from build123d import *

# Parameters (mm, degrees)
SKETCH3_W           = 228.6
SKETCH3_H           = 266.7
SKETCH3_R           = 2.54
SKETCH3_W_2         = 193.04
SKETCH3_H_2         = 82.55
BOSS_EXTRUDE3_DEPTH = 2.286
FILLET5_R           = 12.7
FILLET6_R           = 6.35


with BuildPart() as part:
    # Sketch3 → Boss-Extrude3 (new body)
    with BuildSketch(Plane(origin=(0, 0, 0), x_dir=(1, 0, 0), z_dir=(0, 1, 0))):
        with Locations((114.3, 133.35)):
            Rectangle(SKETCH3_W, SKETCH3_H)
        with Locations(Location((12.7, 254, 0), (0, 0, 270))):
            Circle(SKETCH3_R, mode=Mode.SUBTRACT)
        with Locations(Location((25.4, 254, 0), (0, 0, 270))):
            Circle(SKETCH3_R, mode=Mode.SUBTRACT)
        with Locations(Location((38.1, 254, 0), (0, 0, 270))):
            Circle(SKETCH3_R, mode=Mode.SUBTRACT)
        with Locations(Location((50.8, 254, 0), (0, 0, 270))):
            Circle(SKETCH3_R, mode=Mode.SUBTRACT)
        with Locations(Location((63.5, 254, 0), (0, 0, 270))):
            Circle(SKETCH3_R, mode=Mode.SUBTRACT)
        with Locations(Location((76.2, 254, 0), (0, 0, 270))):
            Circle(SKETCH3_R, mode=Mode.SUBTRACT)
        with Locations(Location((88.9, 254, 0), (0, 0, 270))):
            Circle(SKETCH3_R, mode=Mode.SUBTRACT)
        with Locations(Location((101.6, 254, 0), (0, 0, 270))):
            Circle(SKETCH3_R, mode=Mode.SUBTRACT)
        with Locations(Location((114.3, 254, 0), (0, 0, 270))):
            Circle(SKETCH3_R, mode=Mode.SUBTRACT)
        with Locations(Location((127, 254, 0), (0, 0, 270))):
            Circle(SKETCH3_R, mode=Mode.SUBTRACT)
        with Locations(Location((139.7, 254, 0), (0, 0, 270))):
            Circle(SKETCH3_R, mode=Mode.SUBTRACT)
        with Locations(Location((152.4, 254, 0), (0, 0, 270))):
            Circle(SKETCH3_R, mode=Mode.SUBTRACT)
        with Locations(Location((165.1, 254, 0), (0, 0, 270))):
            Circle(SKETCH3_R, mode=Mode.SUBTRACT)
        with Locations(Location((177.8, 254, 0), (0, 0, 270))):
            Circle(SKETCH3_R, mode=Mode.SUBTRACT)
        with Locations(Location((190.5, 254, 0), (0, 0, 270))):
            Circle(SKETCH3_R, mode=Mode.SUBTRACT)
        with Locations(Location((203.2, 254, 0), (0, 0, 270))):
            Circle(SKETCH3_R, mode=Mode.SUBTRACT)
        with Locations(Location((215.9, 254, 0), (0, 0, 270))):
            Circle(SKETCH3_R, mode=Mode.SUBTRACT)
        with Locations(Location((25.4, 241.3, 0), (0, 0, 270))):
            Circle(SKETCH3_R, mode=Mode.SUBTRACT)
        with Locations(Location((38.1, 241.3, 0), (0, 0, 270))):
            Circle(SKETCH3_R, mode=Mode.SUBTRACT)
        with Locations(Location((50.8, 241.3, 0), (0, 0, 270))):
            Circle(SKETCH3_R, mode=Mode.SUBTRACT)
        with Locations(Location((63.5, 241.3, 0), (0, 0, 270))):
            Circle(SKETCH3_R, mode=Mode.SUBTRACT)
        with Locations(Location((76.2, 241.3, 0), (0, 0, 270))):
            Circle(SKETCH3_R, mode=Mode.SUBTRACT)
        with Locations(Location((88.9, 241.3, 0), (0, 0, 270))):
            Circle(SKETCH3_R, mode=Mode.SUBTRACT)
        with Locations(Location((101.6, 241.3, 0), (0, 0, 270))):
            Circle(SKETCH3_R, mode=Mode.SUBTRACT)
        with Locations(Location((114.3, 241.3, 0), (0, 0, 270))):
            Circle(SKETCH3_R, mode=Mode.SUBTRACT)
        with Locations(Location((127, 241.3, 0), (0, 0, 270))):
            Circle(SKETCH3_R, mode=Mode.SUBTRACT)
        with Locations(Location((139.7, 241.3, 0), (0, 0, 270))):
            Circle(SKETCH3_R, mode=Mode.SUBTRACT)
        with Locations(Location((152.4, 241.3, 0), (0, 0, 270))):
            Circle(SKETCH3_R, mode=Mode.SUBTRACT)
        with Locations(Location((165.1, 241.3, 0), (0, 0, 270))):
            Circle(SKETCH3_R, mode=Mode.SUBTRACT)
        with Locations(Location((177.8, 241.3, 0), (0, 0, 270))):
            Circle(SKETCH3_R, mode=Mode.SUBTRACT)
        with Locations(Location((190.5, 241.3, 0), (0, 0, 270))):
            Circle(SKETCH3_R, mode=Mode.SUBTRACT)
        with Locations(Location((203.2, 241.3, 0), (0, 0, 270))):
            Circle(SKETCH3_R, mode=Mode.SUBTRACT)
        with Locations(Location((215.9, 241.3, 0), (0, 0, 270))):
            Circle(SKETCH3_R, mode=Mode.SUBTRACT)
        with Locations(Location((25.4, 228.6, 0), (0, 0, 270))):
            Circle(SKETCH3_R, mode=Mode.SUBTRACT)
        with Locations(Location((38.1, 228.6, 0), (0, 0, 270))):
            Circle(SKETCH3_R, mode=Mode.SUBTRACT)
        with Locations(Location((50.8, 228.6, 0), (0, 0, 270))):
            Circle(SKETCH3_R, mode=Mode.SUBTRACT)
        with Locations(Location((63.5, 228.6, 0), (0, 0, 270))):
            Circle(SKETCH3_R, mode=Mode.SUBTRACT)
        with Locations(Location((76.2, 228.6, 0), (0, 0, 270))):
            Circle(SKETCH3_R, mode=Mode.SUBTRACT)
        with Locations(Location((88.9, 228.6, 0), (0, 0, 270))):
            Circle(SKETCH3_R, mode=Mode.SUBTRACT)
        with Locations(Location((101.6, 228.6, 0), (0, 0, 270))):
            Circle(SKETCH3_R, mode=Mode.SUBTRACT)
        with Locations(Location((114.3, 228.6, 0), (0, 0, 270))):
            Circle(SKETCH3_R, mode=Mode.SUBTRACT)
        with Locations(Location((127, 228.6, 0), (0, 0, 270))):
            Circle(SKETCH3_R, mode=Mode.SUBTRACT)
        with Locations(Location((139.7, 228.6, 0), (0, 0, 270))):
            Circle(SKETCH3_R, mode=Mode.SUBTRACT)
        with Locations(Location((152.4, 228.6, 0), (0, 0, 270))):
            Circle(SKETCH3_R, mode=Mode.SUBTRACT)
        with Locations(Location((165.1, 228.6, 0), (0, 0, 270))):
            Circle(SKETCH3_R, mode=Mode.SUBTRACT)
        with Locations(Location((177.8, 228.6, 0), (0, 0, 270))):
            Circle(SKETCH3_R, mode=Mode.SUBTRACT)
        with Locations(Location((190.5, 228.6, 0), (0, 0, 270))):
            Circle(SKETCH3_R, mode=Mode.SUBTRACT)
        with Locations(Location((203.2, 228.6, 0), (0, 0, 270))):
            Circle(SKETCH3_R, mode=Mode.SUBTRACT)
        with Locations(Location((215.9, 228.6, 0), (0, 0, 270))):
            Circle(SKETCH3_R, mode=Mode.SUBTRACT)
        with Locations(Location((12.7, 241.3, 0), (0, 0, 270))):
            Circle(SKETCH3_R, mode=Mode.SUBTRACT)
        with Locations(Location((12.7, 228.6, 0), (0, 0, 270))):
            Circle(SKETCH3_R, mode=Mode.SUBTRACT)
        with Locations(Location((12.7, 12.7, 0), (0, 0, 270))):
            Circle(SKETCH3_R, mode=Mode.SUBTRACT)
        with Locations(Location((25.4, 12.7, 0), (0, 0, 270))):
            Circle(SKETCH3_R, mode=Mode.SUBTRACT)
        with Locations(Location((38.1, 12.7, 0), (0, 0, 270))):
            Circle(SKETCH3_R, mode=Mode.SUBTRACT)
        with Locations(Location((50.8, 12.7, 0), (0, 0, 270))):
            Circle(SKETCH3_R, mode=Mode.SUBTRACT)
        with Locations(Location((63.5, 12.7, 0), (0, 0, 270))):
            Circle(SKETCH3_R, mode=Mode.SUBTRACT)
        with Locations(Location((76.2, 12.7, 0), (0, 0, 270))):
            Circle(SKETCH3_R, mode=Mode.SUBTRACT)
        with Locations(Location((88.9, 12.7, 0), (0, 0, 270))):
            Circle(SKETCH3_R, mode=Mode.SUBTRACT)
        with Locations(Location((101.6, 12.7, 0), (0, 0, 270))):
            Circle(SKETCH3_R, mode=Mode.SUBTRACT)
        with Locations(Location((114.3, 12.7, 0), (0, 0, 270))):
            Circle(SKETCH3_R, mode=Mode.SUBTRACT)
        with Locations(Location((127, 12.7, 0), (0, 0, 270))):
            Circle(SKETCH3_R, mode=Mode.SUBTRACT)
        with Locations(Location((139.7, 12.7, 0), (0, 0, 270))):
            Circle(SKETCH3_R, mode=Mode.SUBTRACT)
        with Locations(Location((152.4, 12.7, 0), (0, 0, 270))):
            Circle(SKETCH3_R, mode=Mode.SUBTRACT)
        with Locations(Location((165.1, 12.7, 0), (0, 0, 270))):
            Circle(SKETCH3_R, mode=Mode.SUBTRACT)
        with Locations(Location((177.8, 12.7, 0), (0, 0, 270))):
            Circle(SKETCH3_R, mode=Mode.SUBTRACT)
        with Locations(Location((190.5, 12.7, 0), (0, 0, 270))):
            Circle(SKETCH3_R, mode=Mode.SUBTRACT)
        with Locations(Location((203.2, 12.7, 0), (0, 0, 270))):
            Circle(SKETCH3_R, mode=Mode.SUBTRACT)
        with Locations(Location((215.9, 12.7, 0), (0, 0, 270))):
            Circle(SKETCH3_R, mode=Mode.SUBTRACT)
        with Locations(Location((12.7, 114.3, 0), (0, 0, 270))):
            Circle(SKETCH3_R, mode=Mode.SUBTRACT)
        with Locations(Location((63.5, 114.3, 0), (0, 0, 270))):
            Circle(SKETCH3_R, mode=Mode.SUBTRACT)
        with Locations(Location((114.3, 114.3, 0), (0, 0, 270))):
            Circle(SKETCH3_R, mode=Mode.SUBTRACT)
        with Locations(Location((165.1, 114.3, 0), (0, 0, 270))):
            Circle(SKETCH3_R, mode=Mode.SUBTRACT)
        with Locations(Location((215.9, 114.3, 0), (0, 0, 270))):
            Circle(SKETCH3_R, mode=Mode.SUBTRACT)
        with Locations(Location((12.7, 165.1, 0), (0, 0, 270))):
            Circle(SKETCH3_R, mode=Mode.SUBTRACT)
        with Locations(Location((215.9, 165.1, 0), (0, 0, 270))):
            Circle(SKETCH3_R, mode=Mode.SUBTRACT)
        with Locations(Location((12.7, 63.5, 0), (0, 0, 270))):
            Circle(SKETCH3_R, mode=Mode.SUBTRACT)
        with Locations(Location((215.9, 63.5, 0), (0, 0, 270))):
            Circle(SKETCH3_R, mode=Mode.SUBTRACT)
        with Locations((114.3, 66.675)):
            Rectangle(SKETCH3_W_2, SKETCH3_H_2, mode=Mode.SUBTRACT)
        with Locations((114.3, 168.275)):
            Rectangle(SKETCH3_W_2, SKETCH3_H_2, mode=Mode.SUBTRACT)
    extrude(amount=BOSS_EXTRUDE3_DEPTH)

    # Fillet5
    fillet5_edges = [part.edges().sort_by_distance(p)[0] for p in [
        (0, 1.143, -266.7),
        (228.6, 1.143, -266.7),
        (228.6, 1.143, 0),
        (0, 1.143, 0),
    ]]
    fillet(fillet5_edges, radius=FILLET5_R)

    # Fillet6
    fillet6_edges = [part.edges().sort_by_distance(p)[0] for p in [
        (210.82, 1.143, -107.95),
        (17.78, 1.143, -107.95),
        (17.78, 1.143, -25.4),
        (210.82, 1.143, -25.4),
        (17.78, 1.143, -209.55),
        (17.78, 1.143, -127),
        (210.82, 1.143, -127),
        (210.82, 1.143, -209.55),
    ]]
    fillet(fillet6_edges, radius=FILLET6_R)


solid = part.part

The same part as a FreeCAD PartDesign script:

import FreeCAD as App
import Part
import Sketcher

V = App.Vector
Q = App.Units.Quantity


def edges_at(feature, points):
    """Names of the edges that pass closest to the given points."""
    edges = feature.Shape.Edges
    near = lambda p: min(range(len(edges)), key=lambda i: edges[i].distToShape(Part.Vertex(*p))[0])
    return sorted({f"Edge{near(p) + 1}" for p in points})

doc = App.newDocument("Part")
body = doc.addObject("PartDesign::Body", "Body")

sketch1 = body.newObject("Sketcher::SketchObject", "Sketch")
sketch1.AttachmentSupport = (doc.getObject("XZ_Plane"), [""])
sketch1.MapMode = "FlatFace"
sketch1.addGeometry([
    Part.LineSegment(V(0, -266.7, 0), V(0, 0, 0)),
    Part.LineSegment(V(0, 0, 0), V(228.6, 0, 0)),
    Part.LineSegment(V(228.6, 0, 0), V(228.6, -266.7, 0)),
    Part.LineSegment(V(228.6, -266.7, 0), V(0, -266.7, 0)),
    Part.Circle(V(12.7, -12.7, 0), V(0, 0, 1), 2.5),
    Part.Circle(V(25.4, -12.7, 0), V(0, 0, 1), 2.5),
    Part.Circle(V(38.1, -12.7, 0), V(0, 0, 1), 2.5),
    Part.Circle(V(50.8, -12.7, 0), V(0, 0, 1), 2.5),
    Part.Circle(V(12.7, -63.5, 0), V(0, 0, 1), 2.5),
    Part.Circle(V(63.5, -12.7, 0), V(0, 0, 1), 2.5),
    Part.Circle(V(76.2, -12.7, 0), V(0, 0, 1), 2.5),
    Part.Circle(V(88.9, -12.7, 0), V(0, 0, 1), 2.5),
    Part.Circle(V(101.6, -12.7, 0), V(0, 0, 1), 2.5),
    Part.Circle(V(114.3, -12.7, 0), V(0, 0, 1), 2.5),
    Part.LineSegment(V(210.8, -25.4, 0), V(17.8, -25.4, 0)),
    Part.LineSegment(V(17.8, -25.4, 0), V(17.8, -108, 0)),
    Part.LineSegment(V(17.8, -108, 0), V(210.8, -108, 0)),
    Part.LineSegment(V(210.8, -108, 0), V(210.8, -25.4, 0)),
    Part.Circle(V(12.7, -114.3, 0), V(0, 0, 1), 2.5),
    Part.Circle(V(63.5, -114.3, 0), V(0, 0, 1), 2.5),
    Part.Circle(V(114.3, -114.3, 0), V(0, 0, 1), 2.5),
    Part.Circle(V(127, -12.7, 0), V(0, 0, 1), 2.5),
    Part.Circle(V(139.7, -12.7, 0), V(0, 0, 1), 2.5),
    Part.Circle(V(152.4, -12.7, 0), V(0, 0, 1), 2.5),
    Part.Circle(V(165.1, -12.7, 0), V(0, 0, 1), 2.5),
    Part.Circle(V(177.8, -12.7, 0), V(0, 0, 1), 2.5),
    Part.Circle(V(190.5, -12.7, 0), V(0, 0, 1), 2.5),
    Part.Circle(V(203.2, -12.7, 0), V(0, 0, 1), 2.5),
    Part.Circle(V(215.9, -12.7, 0), V(0, 0, 1), 2.5),
    Part.Circle(V(215.9, -63.5, 0), V(0, 0, 1), 2.5),
    Part.Circle(V(165.1, -114.3, 0), V(0, 0, 1), 2.5),
    Part.Circle(V(215.9, -114.3, 0), V(0, 0, 1), 2.5),
    Part.Circle(V(12.7, -165.1, 0), V(0, 0, 1), 2.5),
    Part.LineSegment(V(210.8, -127, 0), V(17.8, -127, 0)),
    Part.LineSegment(V(17.8, -127, 0), V(17.8, -209.6, 0)),
    Part.LineSegment(V(17.8, -209.6, 0), V(210.8, -209.6, 0)),
    Part.LineSegment(V(210.8, -209.6, 0), V(210.8, -127, 0)),
    Part.Circle(V(12.7, -228.6, 0), V(0, 0, 1), 2.5),
    Part.Circle(V(25.4, -228.6, 0), V(0, 0, 1), 2.5),
    Part.Circle(V(12.7, -241.3, 0), V(0, 0, 1), 2.5),
    Part.Circle(V(12.7, -254, 0), V(0, 0, 1), 2.5),
    Part.Circle(V(25.4, -241.3, 0), V(0, 0, 1), 2.5),
    Part.Circle(V(25.4, -254, 0), V(0, 0, 1), 2.5),
    Part.Circle(V(38.1, -228.6, 0), V(0, 0, 1), 2.5),
    Part.Circle(V(50.8, -228.6, 0), V(0, 0, 1), 2.5),
    Part.Circle(V(38.1, -241.3, 0), V(0, 0, 1), 2.5),
    Part.Circle(V(38.1, -254, 0), V(0, 0, 1), 2.5),
    Part.Circle(V(50.8, -241.3, 0), V(0, 0, 1), 2.5),
    Part.Circle(V(50.8, -254, 0), V(0, 0, 1), 2.5),
    Part.Circle(V(63.5, -228.6, 0), V(0, 0, 1), 2.5),
    Part.Circle(V(76.2, -228.6, 0), V(0, 0, 1), 2.5),
    Part.Circle(V(63.5, -241.3, 0), V(0, 0, 1), 2.5),
    Part.Circle(V(63.5, -254, 0), V(0, 0, 1), 2.5),
    Part.Circle(V(76.2, -241.3, 0), V(0, 0, 1), 2.5),
    Part.Circle(V(76.2, -254, 0), V(0, 0, 1), 2.5),
    Part.Circle(V(88.9, -228.6, 0), V(0, 0, 1), 2.5),
    Part.Circle(V(101.6, -228.6, 0), V(0, 0, 1), 2.5),
    Part.Circle(V(114.3, -228.6, 0), V(0, 0, 1), 2.5),
    Part.Circle(V(88.9, -241.3, 0), V(0, 0, 1), 2.5),
    Part.Circle(V(88.9, -254, 0), V(0, 0, 1), 2.5),
    Part.Circle(V(101.6, -241.3, 0), V(0, 0, 1), 2.5),
    Part.Circle(V(114.3, -241.3, 0), V(0, 0, 1), 2.5),
    Part.Circle(V(101.6, -254, 0), V(0, 0, 1), 2.5),
    Part.Circle(V(114.3, -254, 0), V(0, 0, 1), 2.5),
    Part.Circle(V(215.9, -165.1, 0), V(0, 0, 1), 2.5),
    Part.Circle(V(127, -228.6, 0), V(0, 0, 1), 2.5),
    Part.Circle(V(139.7, -228.6, 0), V(0, 0, 1), 2.5),
    Part.Circle(V(127, -241.3, 0), V(0, 0, 1), 2.5),
    Part.Circle(V(127, -254, 0), V(0, 0, 1), 2.5),
    Part.Circle(V(139.7, -241.3, 0), V(0, 0, 1), 2.5),
    Part.Circle(V(139.7, -254, 0), V(0, 0, 1), 2.5),
    Part.Circle(V(152.4, -228.6, 0), V(0, 0, 1), 2.5),
    Part.Circle(V(165.1, -228.6, 0), V(0, 0, 1), 2.5),
    Part.Circle(V(152.4, -241.3, 0), V(0, 0, 1), 2.5),
    Part.Circle(V(152.4, -254, 0), V(0, 0, 1), 2.5),
    Part.Circle(V(165.1, -241.3, 0), V(0, 0, 1), 2.5),
    Part.Circle(V(165.1, -254, 0), V(0, 0, 1), 2.5),
    Part.Circle(V(177.8, -228.6, 0), V(0, 0, 1), 2.5),
    Part.Circle(V(190.5, -228.6, 0), V(0, 0, 1), 2.5),
    Part.Circle(V(177.8, -241.3, 0), V(0, 0, 1), 2.5),
    Part.Circle(V(177.8, -254, 0), V(0, 0, 1), 2.5),
    Part.Circle(V(190.5, -241.3, 0), V(0, 0, 1), 2.5),
    Part.Circle(V(190.5, -254, 0), V(0, 0, 1), 2.5),
    Part.Circle(V(203.2, -228.6, 0), V(0, 0, 1), 2.5),
    Part.Circle(V(215.9, -228.6, 0), V(0, 0, 1), 2.5),
    Part.Circle(V(203.2, -241.3, 0), V(0, 0, 1), 2.5),
    Part.Circle(V(203.2, -254, 0), V(0, 0, 1), 2.5),
    Part.Circle(V(215.9, -241.3, 0), V(0, 0, 1), 2.5),
    Part.Circle(V(215.9, -254, 0), V(0, 0, 1), 2.5),
], False)
sketch1.addConstraint([
    Sketcher.Constraint("Coincident", 0, 2, 1, 1),
    Sketcher.Constraint("Coincident", 1, 2, 2, 1),
    Sketcher.Constraint("Coincident", 2, 2, 3, 1),
    Sketcher.Constraint("Coincident", 3, 2, 0, 1),
    Sketcher.Constraint("Coincident", 14, 2, 15, 1),
    Sketcher.Constraint("Coincident", 15, 2, 16, 1),
    Sketcher.Constraint("Coincident", 16, 2, 17, 1),
    Sketcher.Constraint("Coincident", 17, 2, 14, 1),
    Sketcher.Constraint("Coincident", 33, 2, 34, 1),
    Sketcher.Constraint("Coincident", 34, 2, 35, 1),
    Sketcher.Constraint("Coincident", 35, 2, 36, 1),
    Sketcher.Constraint("Coincident", 36, 2, 33, 1),
    Sketcher.Constraint("Vertical", 0),
    Sketcher.Constraint("Horizontal", 1),
    Sketcher.Constraint("Vertical", 2),
    Sketcher.Constraint("Horizontal", 3),
    Sketcher.Constraint("Horizontal", 14),
    Sketcher.Constraint("Vertical", 15),
    Sketcher.Constraint("Horizontal", 16),
    Sketcher.Constraint("Vertical", 17),
    Sketcher.Constraint("Horizontal", 33),
    Sketcher.Constraint("Vertical", 34),
    Sketcher.Constraint("Horizontal", 35),
    Sketcher.Constraint("Vertical", 36),
    Sketcher.Constraint("Coincident", 0, 2, -1, 1),
    Sketcher.Constraint("Equal", 4, 5),
    Sketcher.Constraint("Equal", 5, 6),
    Sketcher.Constraint("Equal", 6, 7),
    Sketcher.Constraint("Equal", 7, 8),
    Sketcher.Constraint("Equal", 8, 9),
    Sketcher.Constraint("Equal", 9, 10),
    Sketcher.Constraint("Equal", 10, 11),
    Sketcher.Constraint("Equal", 11, 12),
    Sketcher.Constraint("Equal", 12, 13),
    Sketcher.Constraint("Equal", 13, 18),
    Sketcher.Constraint("Equal", 18, 19),
    Sketcher.Constraint("Equal", 19, 20),
    Sketcher.Constraint("Equal", 20, 21),
    Sketcher.Constraint("Equal", 21, 22),
    Sketcher.Constraint("Equal", 22, 23),
    Sketcher.Constraint("Equal", 23, 24),
    Sketcher.Constraint("Equal", 24, 25),
    Sketcher.Constraint("Equal", 25, 26),
    Sketcher.Constraint("Equal", 26, 27),
    Sketcher.Constraint("Equal", 27, 28),
    Sketcher.Constraint("Equal", 28, 29),
    Sketcher.Constraint("Equal", 29, 30),
    Sketcher.Constraint("Equal", 30, 31),
    Sketcher.Constraint("Equal", 31, 32),
    Sketcher.Constraint("Equal", 32, 37),
    Sketcher.Constraint("Equal", 37, 38),
    Sketcher.Constraint("Equal", 38, 39),
    Sketcher.Constraint("Equal", 39, 40),
    Sketcher.Constraint("Equal", 40, 41),
    Sketcher.Constraint("Equal", 41, 42),
    Sketcher.Constraint("Equal", 42, 43),
    Sketcher.Constraint("Equal", 43, 44),
    Sketcher.Constraint("Equal", 44, 45),
    Sketcher.Constraint("Equal", 45, 46),
    Sketcher.Constraint("Equal", 46, 47),
    Sketcher.Constraint("Equal", 47, 48),
    Sketcher.Constraint("Equal", 48, 49),
    Sketcher.Constraint("Equal", 49, 50),
    Sketcher.Constraint("Equal", 50, 51),
    Sketcher.Constraint("Equal", 51, 52),
    Sketcher.Constraint("Equal", 52, 53),
    Sketcher.Constraint("Equal", 53, 54),
    Sketcher.Constraint("Equal", 54, 55),
    Sketcher.Constraint("Equal", 55, 56),
    Sketcher.Constraint("Equal", 56, 57),
    Sketcher.Constraint("Equal", 57, 58),
    Sketcher.Constraint("Equal", 58, 59),
    Sketcher.Constraint("Equal", 59, 60),
    Sketcher.Constraint("Equal", 60, 61),
    Sketcher.Constraint("Equal", 61, 62),
    Sketcher.Constraint("Equal", 62, 63),
    Sketcher.Constraint("Equal", 63, 64),
    Sketcher.Constraint("Equal", 64, 65),
    Sketcher.Constraint("Equal", 65, 66),
    Sketcher.Constraint("Equal", 66, 67),
    Sketcher.Constraint("Equal", 67, 68),
    Sketcher.Constraint("Equal", 68, 69),
    Sketcher.Constraint("Equal", 69, 70),
    Sketcher.Constraint("Equal", 70, 71),
    Sketcher.Constraint("Equal", 71, 72),
    Sketcher.Constraint("Equal", 72, 73),
    Sketcher.Constraint("Equal", 73, 74),
    Sketcher.Constraint("Equal", 74, 75),
    Sketcher.Constraint("Equal", 75, 76),
    Sketcher.Constraint("Equal", 76, 77),
    Sketcher.Constraint("Equal", 77, 78),
    Sketcher.Constraint("Equal", 78, 79),
    Sketcher.Constraint("Equal", 79, 80),
    Sketcher.Constraint("Equal", 80, 81),
    Sketcher.Constraint("Equal", 81, 82),
    Sketcher.Constraint("Equal", 82, 83),
    Sketcher.Constraint("Equal", 83, 84),
    Sketcher.Constraint("Equal", 84, 85),
    Sketcher.Constraint("Equal", 85, 86),
    Sketcher.Constraint("Equal", 86, 87),
    Sketcher.Constraint("Equal", 87, 88),
    Sketcher.Constraint("Horizontal", 4, 3, 5, 3),
    Sketcher.Constraint("Horizontal", 5, 3, 6, 3),
    Sketcher.Constraint("Horizontal", 6, 3, 7, 3),
    Sketcher.Constraint("Horizontal", 7, 3, 9, 3),
    Sketcher.Constraint("Horizontal", 9, 3, 10, 3),
    Sketcher.Constraint("Horizontal", 10, 3, 11, 3),
    Sketcher.Constraint("Horizontal", 11, 3, 12, 3),
    Sketcher.Constraint("Horizontal", 12, 3, 13, 3),
    Sketcher.Constraint("Horizontal", 18, 3, 19, 3),
    Sketcher.Constraint("Horizontal", 19, 3, 20, 3),
    Sketcher.Constraint("Horizontal", 13, 3, 21, 3),
    Sketcher.Constraint("Horizontal", 21, 3, 22, 3),
    Sketcher.Constraint("Horizontal", 22, 3, 23, 3),
    Sketcher.Constraint("Horizontal", 23, 3, 24, 3),
    Sketcher.Constraint("Horizontal", 24, 3, 25, 3),
    Sketcher.Constraint("Horizontal", 25, 3, 26, 3),
    Sketcher.Constraint("Horizontal", 26, 3, 27, 3),
    Sketcher.Constraint("Horizontal", 27, 3, 28, 3),
    Sketcher.Constraint("Horizontal", 8, 3, 29, 3),
    Sketcher.Constraint("Horizontal", 20, 3, 30, 3),
    Sketcher.Constraint("Horizontal", 30, 3, 31, 3),
    Sketcher.Constraint("Horizontal", 37, 3, 38, 3),
    Sketcher.Constraint("Horizontal", 39, 3, 41, 3),
    Sketcher.Constraint("Horizontal", 40, 3, 42, 3),
    Sketcher.Constraint("Horizontal", 38, 3, 43, 3),
    Sketcher.Constraint("Horizontal", 43, 3, 44, 3),
    Sketcher.Constraint("Horizontal", 41, 3, 45, 3),
    Sketcher.Constraint("Horizontal", 42, 3, 46, 3),
    Sketcher.Constraint("Horizontal", 45, 3, 47, 3),
    Sketcher.Constraint("Horizontal", 46, 3, 48, 3),
    Sketcher.Constraint("Horizontal", 44, 3, 49, 3),
    Sketcher.Constraint("Horizontal", 49, 3, 50, 3),
    Sketcher.Constraint("Horizontal", 47, 3, 51, 3),
    Sketcher.Constraint("Horizontal", 48, 3, 52, 3),
    Sketcher.Constraint("Horizontal", 51, 3, 53, 3),
    Sketcher.Constraint("Horizontal", 52, 3, 54, 3),
    Sketcher.Constraint("Horizontal", 50, 3, 55, 3),
    Sketcher.Constraint("Horizontal", 55, 3, 56, 3),
    Sketcher.Constraint("Horizontal", 56, 3, 57, 3),
    Sketcher.Constraint("Horizontal", 53, 3, 58, 3),
    Sketcher.Constraint("Horizontal", 54, 3, 59, 3),
    Sketcher.Constraint("Horizontal", 58, 3, 60, 3),
    Sketcher.Constraint("Horizontal", 60, 3, 61, 3),
    Sketcher.Constraint("Horizontal", 59, 3, 62, 3),
    Sketcher.Constraint("Horizontal", 62, 3, 63, 3),
    Sketcher.Constraint("Horizontal", 32, 3, 64, 3),
    Sketcher.Constraint("Horizontal", 57, 3, 65, 3),
    Sketcher.Constraint("Horizontal", 65, 3, 66, 3),
    Sketcher.Constraint("Horizontal", 61, 3, 67, 3),
    Sketcher.Constraint("Horizontal", 63, 3, 68, 3),
    Sketcher.Constraint("Horizontal", 67, 3, 69, 3),
    Sketcher.Constraint("Horizontal", 68, 3, 70, 3),
    Sketcher.Constraint("Horizontal", 66, 3, 71, 3),
    Sketcher.Constraint("Horizontal", 71, 3, 72, 3),
    Sketcher.Constraint("Horizontal", 69, 3, 73, 3),
    Sketcher.Constraint("Horizontal", 70, 3, 74, 3),
    Sketcher.Constraint("Horizontal", 73, 3, 75, 3),
    Sketcher.Constraint("Horizontal", 74, 3, 76, 3),
    Sketcher.Constraint("Horizontal", 72, 3, 77, 3),
    Sketcher.Constraint("Horizontal", 77, 3, 78, 3),
    Sketcher.Constraint("Horizontal", 75, 3, 79, 3),
    Sketcher.Constraint("Horizontal", 76, 3, 80, 3),
    Sketcher.Constraint("Horizontal", 79, 3, 81, 3),
    Sketcher.Constraint("Horizontal", 80, 3, 82, 3),
    Sketcher.Constraint("Horizontal", 78, 3, 83, 3),
    Sketcher.Constraint("Horizontal", 83, 3, 84, 3),
    Sketcher.Constraint("Horizontal", 81, 3, 85, 3),
    Sketcher.Constraint("Horizontal", 82, 3, 86, 3),
    Sketcher.Constraint("Horizontal", 85, 3, 87, 3),
    Sketcher.Constraint("Horizontal", 86, 3, 88, 3),
    Sketcher.Constraint("Vertical", 4, 3, 8, 3),
    Sketcher.Constraint("Vertical", 8, 3, 18, 3),
    Sketcher.Constraint("Vertical", 9, 3, 19, 3),
    Sketcher.Constraint("Vertical", 13, 3, 20, 3),
    Sketcher.Constraint("Vertical", 28, 3, 29, 3),
    Sketcher.Constraint("Vertical", 24, 3, 30, 3),
    Sketcher.Constraint("Vertical", 29, 3, 31, 3),
    Sketcher.Constraint("Vertical", 18, 3, 32, 3),
    Sketcher.Constraint("Vertical", 32, 3, 37, 3),
    Sketcher.Constraint("Vertical", 5, 3, 38, 3),
    Sketcher.Constraint("Vertical", 37, 3, 39, 3),
    Sketcher.Constraint("Vertical", 39, 3, 40, 3),
    Sketcher.Constraint("Vertical", 38, 3, 41, 3),
    Sketcher.Constraint("Vertical", 41, 3, 42, 3),
    Sketcher.Constraint("Vertical", 6, 3, 43, 3),
    Sketcher.Constraint("Vertical", 7, 3, 44, 3),
    Sketcher.Constraint("Vertical", 43, 3, 45, 3),
    Sketcher.Constraint("Vertical", 45, 3, 46, 3),
    Sketcher.Constraint("Vertical", 44, 3, 47, 3),
    Sketcher.Constraint("Vertical", 47, 3, 48, 3),
    Sketcher.Constraint("Vertical", 19, 3, 49, 3),
    Sketcher.Constraint("Vertical", 10, 3, 50, 3),
    Sketcher.Constraint("Vertical", 49, 3, 51, 3),
    Sketcher.Constraint("Vertical", 51, 3, 52, 3),
    Sketcher.Constraint("Vertical", 50, 3, 53, 3),
    Sketcher.Constraint("Vertical", 53, 3, 54, 3),
    Sketcher.Constraint("Vertical", 11, 3, 55, 3),
    Sketcher.Constraint("Vertical", 12, 3, 56, 3),
    Sketcher.Constraint("Vertical", 20, 3, 57, 3),
    Sketcher.Constraint("Vertical", 55, 3, 58, 3),
    Sketcher.Constraint("Vertical", 58, 3, 59, 3),
    Sketcher.Constraint("Vertical", 56, 3, 60, 3),
    Sketcher.Constraint("Vertical", 57, 3, 61, 3),
    Sketcher.Constraint("Vertical", 60, 3, 62, 3),
    Sketcher.Constraint("Vertical", 61, 3, 63, 3),
    Sketcher.Constraint("Vertical", 31, 3, 64, 3),
    Sketcher.Constraint("Vertical", 21, 3, 65, 3),
    Sketcher.Constraint("Vertical", 22, 3, 66, 3),
    Sketcher.Constraint("Vertical", 65, 3, 67, 3),
    Sketcher.Constraint("Vertical", 67, 3, 68, 3),
    Sketcher.Constraint("Vertical", 66, 3, 69, 3),
    Sketcher.Constraint("Vertical", 69, 3, 70, 3),
    Sketcher.Constraint("Vertical", 23, 3, 71, 3),
    Sketcher.Constraint("Vertical", 30, 3, 72, 3),
    Sketcher.Constraint("Vertical", 71, 3, 73, 3),
    Sketcher.Constraint("Vertical", 73, 3, 74, 3),
    Sketcher.Constraint("Vertical", 72, 3, 75, 3),
    Sketcher.Constraint("Vertical", 75, 3, 76, 3),
    Sketcher.Constraint("Vertical", 25, 3, 77, 3),
    Sketcher.Constraint("Vertical", 26, 3, 78, 3),
    Sketcher.Constraint("Vertical", 77, 3, 79, 3),
    Sketcher.Constraint("Vertical", 79, 3, 80, 3),
    Sketcher.Constraint("Vertical", 78, 3, 81, 3),
    Sketcher.Constraint("Vertical", 81, 3, 82, 3),
    Sketcher.Constraint("Vertical", 27, 3, 83, 3),
    Sketcher.Constraint("Vertical", 64, 3, 84, 3),
    Sketcher.Constraint("Vertical", 83, 3, 85, 3),
    Sketcher.Constraint("Vertical", 85, 3, 86, 3),
    Sketcher.Constraint("Vertical", 84, 3, 87, 3),
    Sketcher.Constraint("Vertical", 87, 3, 88, 3),
    Sketcher.Constraint("Vertical", 15, 2, 33, 2),
    Sketcher.Constraint("Vertical", 17, 2, 35, 2),
    Sketcher.Constraint("Equal", 17, 34),
    Sketcher.Constraint("Diameter", 4, Q("0.2 in")),
    Sketcher.Constraint("DistanceX", 1, 1, 1, 2, Q("9 in")),
    Sketcher.Constraint("DistanceX", 14, 2, 14, 1, Q("7.6 in")),
    Sketcher.Constraint("DistanceY", 0, 1, 0, 2, Q("10.5 in")),
    Sketcher.Constraint("DistanceX", -1, 1, 5, 3, Q("1 in")),
    Sketcher.Constraint("DistanceX", -1, 1, 7, 3, Q("2 in")),
    Sketcher.Constraint("DistanceX", -1, 1, 10, 3, Q("3 in")),
    Sketcher.Constraint("DistanceX", -1, 1, 12, 3, Q("4 in")),
    Sketcher.Constraint("DistanceX", -1, 1, 21, 3, Q("5 in")),
    Sketcher.Constraint("DistanceX", -1, 1, 23, 3, Q("6 in")),
    Sketcher.Constraint("DistanceX", -1, 1, 25, 3, Q("7 in")),
    Sketcher.Constraint("DistanceX", -1, 1, 27, 3, Q("8 in")),
    Sketcher.Constraint("DistanceY", 37, 3, -1, 1, Q("9 in")),
    Sketcher.Constraint("DistanceY", 40, 3, -1, 1, Q("10 in")),
    Sketcher.Constraint("DistanceY", 14, 2, -1, 1, Q("1 in")),
    Sketcher.Constraint("DistanceY", 33, 2, -1, 1, Q("5 in")),
    Sketcher.Constraint("DistanceY", 15, 2, 15, 1, Q("3.25 in")),
    Sketcher.Constraint("DistanceX", -1, 1, 4, 3, Q("0.5 in")),
    Sketcher.Constraint("DistanceY", 4, 3, -1, 1, Q("0.5 in")),
    Sketcher.Constraint("DistanceX", -1, 1, 6, 3, Q("1.5 in")),
    Sketcher.Constraint("DistanceY", 8, 3, -1, 1, Q("2.5 in")),
    Sketcher.Constraint("DistanceX", -1, 1, 9, 3, Q("2.5 in")),
    Sketcher.Constraint("DistanceX", -1, 1, 11, 3, Q("3.5 in")),
    Sketcher.Constraint("DistanceX", -1, 1, 13, 3, Q("4.5 in")),
    Sketcher.Constraint("DistanceY", 18, 3, -1, 1, Q("4.5 in")),
    Sketcher.Constraint("DistanceX", -1, 1, 22, 3, Q("5.5 in")),
    Sketcher.Constraint("DistanceX", -1, 1, 24, 3, Q("6.5 in")),
    Sketcher.Constraint("DistanceX", -1, 1, 26, 3, Q("7.5 in")),
    Sketcher.Constraint("DistanceX", -1, 1, 28, 3, Q("8.5 in")),
    Sketcher.Constraint("DistanceY", 32, 3, -1, 1, Q("6.5 in")),
    Sketcher.Constraint("DistanceY", 39, 3, -1, 1, Q("9.5 in")),
    Sketcher.Constraint("DistanceX", -1, 1, 14, 2, Q("0.7 in")),
])
pad1 = body.newObject("PartDesign::Pad", "Pad")
pad1.Profile = sketch1
pad1.Length = Q("0.09 in")
pad1.Reversed = True
doc.recompute()

fillet = body.newObject("PartDesign::Fillet", "Fillet")
fillet.Base = (pad1, edges_at(pad1, [
    (0, 1.143, -266.7),
    (228.6, 1.143, -266.7),
    (228.6, 1.143, 0),
    (0, 1.143, 0),
]))
fillet.Radius = Q("0.5 in")
doc.recompute()

fillet2 = body.newObject("PartDesign::Fillet", "Fillet001")
fillet2.Base = (fillet, edges_at(fillet, [
    (210.82, 1.143, -107.95),
    (17.78, 1.143, -107.95),
    (17.78, 1.143, -25.4),
    (210.82, 1.143, -25.4),
    (17.78, 1.143, -209.55),
    (17.78, 1.143, -127),
    (210.82, 1.143, -127),
    (210.82, 1.143, -209.55),
]))
fillet2.Radius = Q("0.25 in")

doc.recompute()
